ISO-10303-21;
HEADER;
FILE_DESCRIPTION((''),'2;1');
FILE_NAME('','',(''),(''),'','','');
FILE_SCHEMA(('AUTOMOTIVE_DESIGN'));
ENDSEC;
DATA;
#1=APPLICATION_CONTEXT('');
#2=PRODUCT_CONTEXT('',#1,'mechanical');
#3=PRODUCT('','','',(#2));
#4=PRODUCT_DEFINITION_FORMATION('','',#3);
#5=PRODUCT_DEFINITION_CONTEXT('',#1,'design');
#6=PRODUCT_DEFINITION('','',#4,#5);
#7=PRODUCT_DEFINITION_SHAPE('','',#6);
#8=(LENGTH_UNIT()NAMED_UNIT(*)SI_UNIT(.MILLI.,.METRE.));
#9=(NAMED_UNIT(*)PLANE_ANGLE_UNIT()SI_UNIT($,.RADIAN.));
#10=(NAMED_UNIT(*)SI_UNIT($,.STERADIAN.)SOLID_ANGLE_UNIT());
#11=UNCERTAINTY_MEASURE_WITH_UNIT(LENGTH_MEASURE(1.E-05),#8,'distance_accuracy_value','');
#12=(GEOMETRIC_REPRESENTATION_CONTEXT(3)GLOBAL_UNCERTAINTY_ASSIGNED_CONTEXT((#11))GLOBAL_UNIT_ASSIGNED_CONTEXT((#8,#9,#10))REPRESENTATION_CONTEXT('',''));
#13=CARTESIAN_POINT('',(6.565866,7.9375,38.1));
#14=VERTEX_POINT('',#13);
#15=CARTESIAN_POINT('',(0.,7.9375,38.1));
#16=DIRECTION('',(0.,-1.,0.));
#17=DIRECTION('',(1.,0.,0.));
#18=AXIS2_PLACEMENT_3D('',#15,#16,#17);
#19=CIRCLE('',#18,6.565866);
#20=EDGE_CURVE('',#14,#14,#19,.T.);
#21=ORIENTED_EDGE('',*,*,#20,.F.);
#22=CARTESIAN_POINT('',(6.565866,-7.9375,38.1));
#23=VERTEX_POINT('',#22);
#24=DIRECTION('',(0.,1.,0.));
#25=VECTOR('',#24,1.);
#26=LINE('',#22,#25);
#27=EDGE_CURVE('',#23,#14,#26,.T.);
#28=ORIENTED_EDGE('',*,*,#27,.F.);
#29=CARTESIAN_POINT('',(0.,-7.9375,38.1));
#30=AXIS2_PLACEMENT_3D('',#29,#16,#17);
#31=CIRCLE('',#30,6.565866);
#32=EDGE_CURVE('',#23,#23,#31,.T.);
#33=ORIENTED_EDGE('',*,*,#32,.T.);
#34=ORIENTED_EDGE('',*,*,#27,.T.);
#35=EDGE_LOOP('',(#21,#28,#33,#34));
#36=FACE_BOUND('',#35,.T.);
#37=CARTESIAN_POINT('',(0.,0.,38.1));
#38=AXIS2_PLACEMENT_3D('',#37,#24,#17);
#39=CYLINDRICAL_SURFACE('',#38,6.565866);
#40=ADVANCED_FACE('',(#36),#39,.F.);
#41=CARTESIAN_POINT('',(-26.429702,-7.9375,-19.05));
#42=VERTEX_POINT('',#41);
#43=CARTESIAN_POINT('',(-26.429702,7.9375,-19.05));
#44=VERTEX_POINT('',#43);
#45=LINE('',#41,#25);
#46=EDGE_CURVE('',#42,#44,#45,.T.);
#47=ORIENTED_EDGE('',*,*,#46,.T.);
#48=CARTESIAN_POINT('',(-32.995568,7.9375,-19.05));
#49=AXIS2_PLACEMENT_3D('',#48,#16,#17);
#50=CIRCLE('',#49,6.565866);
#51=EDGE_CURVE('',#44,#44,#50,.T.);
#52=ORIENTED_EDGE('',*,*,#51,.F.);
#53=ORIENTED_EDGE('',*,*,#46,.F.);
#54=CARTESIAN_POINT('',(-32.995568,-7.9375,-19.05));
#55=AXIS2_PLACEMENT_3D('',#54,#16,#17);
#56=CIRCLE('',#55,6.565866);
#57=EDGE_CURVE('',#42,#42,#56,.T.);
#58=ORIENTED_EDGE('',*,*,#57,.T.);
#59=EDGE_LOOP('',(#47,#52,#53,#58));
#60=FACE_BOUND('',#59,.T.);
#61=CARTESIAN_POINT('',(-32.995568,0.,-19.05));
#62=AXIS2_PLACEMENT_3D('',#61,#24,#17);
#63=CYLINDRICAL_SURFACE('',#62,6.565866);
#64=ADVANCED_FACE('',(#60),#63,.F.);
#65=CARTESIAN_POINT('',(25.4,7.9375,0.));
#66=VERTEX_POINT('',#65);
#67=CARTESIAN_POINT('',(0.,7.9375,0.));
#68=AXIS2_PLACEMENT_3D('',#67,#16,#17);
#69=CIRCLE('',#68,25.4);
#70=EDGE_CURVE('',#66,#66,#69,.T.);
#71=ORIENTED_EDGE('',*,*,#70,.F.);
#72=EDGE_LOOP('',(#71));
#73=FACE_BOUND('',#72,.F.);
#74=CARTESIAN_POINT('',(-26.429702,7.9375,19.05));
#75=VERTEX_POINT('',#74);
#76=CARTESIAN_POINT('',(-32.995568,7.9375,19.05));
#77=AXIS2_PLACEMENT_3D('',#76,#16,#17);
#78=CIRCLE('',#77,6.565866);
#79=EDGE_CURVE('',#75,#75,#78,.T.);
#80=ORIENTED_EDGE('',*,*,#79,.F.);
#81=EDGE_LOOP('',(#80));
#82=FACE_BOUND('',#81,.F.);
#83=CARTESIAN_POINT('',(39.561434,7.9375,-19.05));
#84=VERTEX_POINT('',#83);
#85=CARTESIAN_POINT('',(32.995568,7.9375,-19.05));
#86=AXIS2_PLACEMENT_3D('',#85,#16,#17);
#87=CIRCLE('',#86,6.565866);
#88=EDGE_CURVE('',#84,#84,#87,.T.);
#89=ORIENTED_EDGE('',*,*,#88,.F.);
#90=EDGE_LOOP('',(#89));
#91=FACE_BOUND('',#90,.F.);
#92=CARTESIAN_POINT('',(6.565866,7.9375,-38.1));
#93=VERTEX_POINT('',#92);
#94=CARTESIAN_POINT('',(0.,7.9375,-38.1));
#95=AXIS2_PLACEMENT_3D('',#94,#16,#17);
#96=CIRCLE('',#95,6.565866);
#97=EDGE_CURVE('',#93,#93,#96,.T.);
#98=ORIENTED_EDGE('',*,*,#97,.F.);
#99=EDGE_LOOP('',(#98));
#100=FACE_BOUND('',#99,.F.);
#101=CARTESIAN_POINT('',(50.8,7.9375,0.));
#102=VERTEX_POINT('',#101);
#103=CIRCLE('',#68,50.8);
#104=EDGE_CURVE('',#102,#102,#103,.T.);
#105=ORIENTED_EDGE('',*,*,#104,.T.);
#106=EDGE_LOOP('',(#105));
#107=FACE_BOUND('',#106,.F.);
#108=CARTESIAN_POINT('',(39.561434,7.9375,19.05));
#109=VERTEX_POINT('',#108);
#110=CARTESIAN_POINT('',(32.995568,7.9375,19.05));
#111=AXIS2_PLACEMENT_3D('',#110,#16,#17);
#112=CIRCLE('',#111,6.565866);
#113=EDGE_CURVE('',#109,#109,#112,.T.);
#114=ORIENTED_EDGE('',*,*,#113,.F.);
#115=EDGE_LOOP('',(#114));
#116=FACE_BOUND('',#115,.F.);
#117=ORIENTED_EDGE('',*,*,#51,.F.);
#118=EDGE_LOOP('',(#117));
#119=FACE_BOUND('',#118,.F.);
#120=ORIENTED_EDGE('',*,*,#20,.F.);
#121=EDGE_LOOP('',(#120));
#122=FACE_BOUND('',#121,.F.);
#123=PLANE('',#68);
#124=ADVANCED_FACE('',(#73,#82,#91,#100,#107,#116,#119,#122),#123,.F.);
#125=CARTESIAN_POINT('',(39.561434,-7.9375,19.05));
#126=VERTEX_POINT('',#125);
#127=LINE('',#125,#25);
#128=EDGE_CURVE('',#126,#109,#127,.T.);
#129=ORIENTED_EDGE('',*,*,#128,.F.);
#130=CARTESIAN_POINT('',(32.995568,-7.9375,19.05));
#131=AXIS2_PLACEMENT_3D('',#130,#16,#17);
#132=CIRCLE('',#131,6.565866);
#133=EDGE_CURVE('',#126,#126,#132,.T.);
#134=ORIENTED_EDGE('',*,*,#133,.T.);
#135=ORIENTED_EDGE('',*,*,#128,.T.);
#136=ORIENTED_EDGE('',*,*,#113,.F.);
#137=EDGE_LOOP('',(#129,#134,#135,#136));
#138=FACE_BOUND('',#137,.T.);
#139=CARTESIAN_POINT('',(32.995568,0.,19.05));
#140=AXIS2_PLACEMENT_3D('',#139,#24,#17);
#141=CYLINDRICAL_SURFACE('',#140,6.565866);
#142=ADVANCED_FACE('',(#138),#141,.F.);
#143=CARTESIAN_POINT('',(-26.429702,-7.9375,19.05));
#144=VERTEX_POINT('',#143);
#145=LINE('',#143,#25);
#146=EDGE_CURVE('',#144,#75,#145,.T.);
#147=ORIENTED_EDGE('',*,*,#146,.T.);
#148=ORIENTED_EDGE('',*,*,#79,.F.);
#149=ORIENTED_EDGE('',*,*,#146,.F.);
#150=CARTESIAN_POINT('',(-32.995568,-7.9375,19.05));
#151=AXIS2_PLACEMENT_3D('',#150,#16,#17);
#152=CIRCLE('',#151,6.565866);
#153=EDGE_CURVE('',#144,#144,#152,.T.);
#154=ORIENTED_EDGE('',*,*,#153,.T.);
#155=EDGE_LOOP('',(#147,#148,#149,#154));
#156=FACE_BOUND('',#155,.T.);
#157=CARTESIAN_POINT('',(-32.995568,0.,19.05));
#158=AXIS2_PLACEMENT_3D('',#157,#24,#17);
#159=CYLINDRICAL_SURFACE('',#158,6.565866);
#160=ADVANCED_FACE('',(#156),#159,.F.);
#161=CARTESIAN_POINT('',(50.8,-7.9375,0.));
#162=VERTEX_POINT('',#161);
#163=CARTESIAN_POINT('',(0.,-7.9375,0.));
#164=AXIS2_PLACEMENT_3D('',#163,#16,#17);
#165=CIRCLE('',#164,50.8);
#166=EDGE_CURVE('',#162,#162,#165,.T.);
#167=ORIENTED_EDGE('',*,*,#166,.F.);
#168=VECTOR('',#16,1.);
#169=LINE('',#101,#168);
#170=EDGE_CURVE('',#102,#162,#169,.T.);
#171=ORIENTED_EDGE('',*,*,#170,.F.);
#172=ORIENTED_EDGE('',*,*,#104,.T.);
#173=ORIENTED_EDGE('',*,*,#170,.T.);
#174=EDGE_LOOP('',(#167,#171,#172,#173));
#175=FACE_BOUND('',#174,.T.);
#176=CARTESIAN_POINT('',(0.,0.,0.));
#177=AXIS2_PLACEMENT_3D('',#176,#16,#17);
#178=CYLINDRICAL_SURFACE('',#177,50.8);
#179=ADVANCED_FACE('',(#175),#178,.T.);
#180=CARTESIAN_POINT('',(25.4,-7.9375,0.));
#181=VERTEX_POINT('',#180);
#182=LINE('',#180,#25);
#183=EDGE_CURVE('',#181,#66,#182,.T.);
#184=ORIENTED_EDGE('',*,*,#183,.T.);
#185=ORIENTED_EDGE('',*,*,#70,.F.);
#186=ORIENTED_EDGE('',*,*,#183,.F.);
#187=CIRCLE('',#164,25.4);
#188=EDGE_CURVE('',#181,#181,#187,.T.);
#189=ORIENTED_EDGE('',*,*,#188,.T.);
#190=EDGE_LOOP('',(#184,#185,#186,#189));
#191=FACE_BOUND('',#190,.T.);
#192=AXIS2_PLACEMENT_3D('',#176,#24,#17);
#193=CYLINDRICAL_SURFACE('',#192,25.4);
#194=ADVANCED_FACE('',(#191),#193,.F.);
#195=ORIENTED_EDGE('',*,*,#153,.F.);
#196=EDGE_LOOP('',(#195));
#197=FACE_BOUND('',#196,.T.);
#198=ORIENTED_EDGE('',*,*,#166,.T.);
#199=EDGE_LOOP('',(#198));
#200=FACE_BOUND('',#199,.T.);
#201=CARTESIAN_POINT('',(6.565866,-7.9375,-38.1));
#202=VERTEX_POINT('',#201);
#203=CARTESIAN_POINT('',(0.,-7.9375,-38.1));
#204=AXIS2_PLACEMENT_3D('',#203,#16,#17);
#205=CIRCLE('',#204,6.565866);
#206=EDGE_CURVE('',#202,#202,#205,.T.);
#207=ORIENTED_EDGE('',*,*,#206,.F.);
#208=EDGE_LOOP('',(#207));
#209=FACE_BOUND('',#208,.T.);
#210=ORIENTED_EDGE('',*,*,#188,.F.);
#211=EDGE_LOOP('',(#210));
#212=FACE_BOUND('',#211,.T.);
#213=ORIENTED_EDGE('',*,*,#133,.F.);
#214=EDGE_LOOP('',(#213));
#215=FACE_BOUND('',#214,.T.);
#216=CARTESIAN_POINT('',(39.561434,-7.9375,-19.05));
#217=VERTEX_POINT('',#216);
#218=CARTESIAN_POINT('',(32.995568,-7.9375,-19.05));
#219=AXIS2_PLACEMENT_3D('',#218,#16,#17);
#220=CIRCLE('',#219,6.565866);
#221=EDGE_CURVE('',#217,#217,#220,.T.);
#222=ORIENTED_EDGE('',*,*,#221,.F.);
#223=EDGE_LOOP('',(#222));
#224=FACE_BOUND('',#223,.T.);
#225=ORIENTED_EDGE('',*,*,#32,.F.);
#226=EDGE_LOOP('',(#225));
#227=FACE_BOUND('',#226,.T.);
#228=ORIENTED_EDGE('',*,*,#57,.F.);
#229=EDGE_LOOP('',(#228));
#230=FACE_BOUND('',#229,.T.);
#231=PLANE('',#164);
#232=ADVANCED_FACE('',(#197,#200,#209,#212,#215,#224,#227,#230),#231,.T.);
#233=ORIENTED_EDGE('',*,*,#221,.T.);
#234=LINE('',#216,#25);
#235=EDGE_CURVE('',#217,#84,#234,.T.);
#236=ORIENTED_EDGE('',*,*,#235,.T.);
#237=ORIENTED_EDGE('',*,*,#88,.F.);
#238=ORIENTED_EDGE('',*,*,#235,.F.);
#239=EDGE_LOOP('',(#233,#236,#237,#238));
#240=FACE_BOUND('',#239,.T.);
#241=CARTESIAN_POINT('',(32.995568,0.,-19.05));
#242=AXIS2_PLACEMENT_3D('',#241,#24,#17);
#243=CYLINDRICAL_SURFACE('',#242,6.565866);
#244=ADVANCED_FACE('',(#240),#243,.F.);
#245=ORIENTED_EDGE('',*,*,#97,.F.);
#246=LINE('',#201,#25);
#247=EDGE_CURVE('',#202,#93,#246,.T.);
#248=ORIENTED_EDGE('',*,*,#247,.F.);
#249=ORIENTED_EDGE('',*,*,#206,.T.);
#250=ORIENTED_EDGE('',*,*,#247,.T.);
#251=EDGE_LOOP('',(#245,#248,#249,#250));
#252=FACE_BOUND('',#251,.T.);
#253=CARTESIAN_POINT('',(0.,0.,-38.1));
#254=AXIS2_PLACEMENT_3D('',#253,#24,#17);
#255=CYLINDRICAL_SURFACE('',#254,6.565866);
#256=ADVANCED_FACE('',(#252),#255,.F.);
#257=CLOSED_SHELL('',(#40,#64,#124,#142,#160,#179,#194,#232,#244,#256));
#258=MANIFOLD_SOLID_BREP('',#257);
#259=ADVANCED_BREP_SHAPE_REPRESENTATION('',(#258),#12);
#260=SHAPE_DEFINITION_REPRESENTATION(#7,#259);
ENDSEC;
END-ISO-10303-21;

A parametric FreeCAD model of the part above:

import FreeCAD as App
import Part
import Sketcher

V = App.Vector
Q = App.Units.Quantity

doc = App.newDocument("Part")
body = doc.addObject("PartDesign::Body", "Body")

# Sketch on XZ plane
sketch1 = body.newObject("Sketcher::SketchObject", "Sketch")
sketch1.AttachmentSupport = (doc.getObject("XZ_Plane"), [""])
sketch1.MapMode = "FlatFace"
sketch1.addGeometry(Part.Circle(V(0, 0, 0), V(0, 0, 1), 51), False)
sketch1.addGeometry(Part.Circle(V(-33, -19, 0), V(0, 0, 1), 7), False)
sketch1.addGeometry(Part.Circle(V(0, -38, 0), V(0, 0, 1), 7), False)
sketch1.addGeometry(Part.Circle(V(33, -19, 0), V(0, 0, 1), 7), False)
sketch1.addGeometry(Part.Circle(V(-33, 19, 0), V(0, 0, 1), 7), False)
sketch1.addGeometry(Part.Circle(V(0, 0, 0), V(0, 0, 1), 25), False)
sketch1.addGeometry(Part.Circle(V(33, 19, 0), V(0, 0, 1), 7), False)
sketch1.addGeometry(Part.Circle(V(0, 38, 0), V(0, 0, 1), 7), False)
sketch1.addConstraint(Sketcher.Constraint("Coincident", 0, 3, -1, 1))
sketch1.addConstraint(Sketcher.Constraint("Coincident", 5, 3, -1, 1))
sketch1.addConstraint(Sketcher.Constraint("Equal", 1, 2))
sketch1.addConstraint(Sketcher.Constraint("Equal", 2, 3))
sketch1.addConstraint(Sketcher.Constraint("Equal", 3, 4))
sketch1.addConstraint(Sketcher.Constraint("Equal", 4, 6))
sketch1.addConstraint(Sketcher.Constraint("Equal", 6, 7))
sketch1.addConstraint(Sketcher.Constraint("Symmetric", 3, 3, 4, 3, -1, 1))
sketch1.addConstraint(Sketcher.Constraint("Symmetric", 1, 3, 6, 3, -1, 1))
sketch1.addConstraint(Sketcher.Constraint("Symmetric", 2, 3, 7, 3, -1, 1))
sketch1.addConstraint(Sketcher.Constraint("Symmetric", 1, 3, 3, 3, -2))
sketch1.addConstraint(Sketcher.Constraint("PointOnObject", 2, 3, -2))
sketch1.addConstraint(Sketcher.Constraint("Diameter", 0, Q("4 in")))
sketch1.addConstraint(Sketcher.Constraint("Diameter", 5, Q("2 in")))
sketch1.addConstraint(Sketcher.Constraint("DistanceY", 2, 3, -1, 1, Q("1.5 in")))
sketch1.addConstraint(Sketcher.Constraint("DistanceY", 1, 3, 4, 3, Q("1.5 in")))
sketch1.addConstraint(Sketcher.Constraint("Diameter", 1, 13.131732))
sketch1.addConstraint(Sketcher.Constraint("DistanceX", 1, 3, -1, 1, 32.995568))
pad1 = body.newObject("PartDesign::Pad", "Pad")
pad1.Profile = sketch1
pad1.Length = Q("0.625 in")
pad1.Midplane = True

doc.recompute()
